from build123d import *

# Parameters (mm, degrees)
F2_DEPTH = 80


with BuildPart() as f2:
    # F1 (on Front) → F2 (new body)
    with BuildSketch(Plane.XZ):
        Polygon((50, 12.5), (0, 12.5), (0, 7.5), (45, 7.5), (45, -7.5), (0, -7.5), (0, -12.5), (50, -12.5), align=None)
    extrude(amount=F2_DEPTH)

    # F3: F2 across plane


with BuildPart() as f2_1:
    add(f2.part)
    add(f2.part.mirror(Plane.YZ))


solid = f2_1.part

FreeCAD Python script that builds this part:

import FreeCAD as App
import Part
import Sketcher
from FreeCAD import Vector


def add_polygon(sketch, points):
    """Adds a closed chain of lines whose ends are joined by coincident constraints."""
    first, n = sketch.GeometryCount, len(points)
    for a, b in zip(points, points[1:] + points[:1]):
        sketch.addGeometry(Part.LineSegment(App.Vector(*a, 0), App.Vector(*b, 0)), False)
    for i in range(n):
        sketch.addConstraint(Sketcher.Constraint("Coincident", first + i, 2, first + (i + 1) % n, 1))

doc = App.newDocument("Part")
body = doc.addObject("PartDesign::Body", "Body")

# Sketch on XZ plane
sketch1 = body.newObject("Sketcher::SketchObject", "Sketch")
sketch1.AttachmentSupport = (doc.getObject("XZ_Plane"), [""])
sketch1.MapMode = "FlatFace"
add_polygon(sketch1, [(50, 12.5), (0, 12.5), (0, 7.5), (45, 7.5), (45, -7.5), (0, -7.5), (0, -12.5), (50, -12.5)])  # lines 0-7
sketch1.addConstraint(Sketcher.Constraint("Horizontal", 0))
sketch1.addConstraint(Sketcher.Constraint("Vertical", 1))
sketch1.addConstraint(Sketcher.Constraint("Horizontal", 2))
sketch1.addConstraint(Sketcher.Constraint("Vertical", 3))
sketch1.addConstraint(Sketcher.Constraint("Horizontal", 4))
sketch1.addConstraint(Sketcher.Constraint("Vertical", 5))
sketch1.addConstraint(Sketcher.Constraint("Horizontal", 6))
sketch1.addConstraint(Sketcher.Constraint("Vertical", 7))
sketch1.addConstraint(Sketcher.Constraint("Symmetric", 1, 2, 4, 2, -1, 1))
sketch1.addConstraint(Sketcher.Constraint("Symmetric", 0, 2, 5, 2, -1))
sketch1.addConstraint(Sketcher.Constraint("DistanceX", 0, 2, 0, 1, 50.0))
sketch1.addConstraint(Sketcher.Constraint("DistanceX", 2, 1, 2, 2, 45.0))
sketch1.addConstraint(Sketcher.Constraint("DistanceY", 1, 2, 1, 1, 5.0))
sketch1.addConstraint(Sketcher.Constraint("DistanceY", 3, 2, 3, 1, 15.0))
pad1 = body.newObject("PartDesign::Pad", "Pad")
pad1.Profile = sketch1
pad1.Length = 80
body2 = doc.addObject("PartDesign::Body", "Body001")
doc.recompute()

body2.BaseFeature = body
doc.recompute()

mirroring = doc.addObject("Part::Mirroring", "Mirroring")
mirroring.Source = body
mirroring.Base = Vector(0, 0, 0)
mirroring.Normal = Vector(1, 0, 0)
body3 = doc.addObject("PartDesign::Body", "Body002")
body3.BaseFeature = mirroring
boolean = body2.newObject("PartDesign::Boolean", "Boolean")
boolean.Type = "Fuse"
boolean.addObjects([body3])
doc.recompute()
mirroring.Visibility = False

doc.recompute()
